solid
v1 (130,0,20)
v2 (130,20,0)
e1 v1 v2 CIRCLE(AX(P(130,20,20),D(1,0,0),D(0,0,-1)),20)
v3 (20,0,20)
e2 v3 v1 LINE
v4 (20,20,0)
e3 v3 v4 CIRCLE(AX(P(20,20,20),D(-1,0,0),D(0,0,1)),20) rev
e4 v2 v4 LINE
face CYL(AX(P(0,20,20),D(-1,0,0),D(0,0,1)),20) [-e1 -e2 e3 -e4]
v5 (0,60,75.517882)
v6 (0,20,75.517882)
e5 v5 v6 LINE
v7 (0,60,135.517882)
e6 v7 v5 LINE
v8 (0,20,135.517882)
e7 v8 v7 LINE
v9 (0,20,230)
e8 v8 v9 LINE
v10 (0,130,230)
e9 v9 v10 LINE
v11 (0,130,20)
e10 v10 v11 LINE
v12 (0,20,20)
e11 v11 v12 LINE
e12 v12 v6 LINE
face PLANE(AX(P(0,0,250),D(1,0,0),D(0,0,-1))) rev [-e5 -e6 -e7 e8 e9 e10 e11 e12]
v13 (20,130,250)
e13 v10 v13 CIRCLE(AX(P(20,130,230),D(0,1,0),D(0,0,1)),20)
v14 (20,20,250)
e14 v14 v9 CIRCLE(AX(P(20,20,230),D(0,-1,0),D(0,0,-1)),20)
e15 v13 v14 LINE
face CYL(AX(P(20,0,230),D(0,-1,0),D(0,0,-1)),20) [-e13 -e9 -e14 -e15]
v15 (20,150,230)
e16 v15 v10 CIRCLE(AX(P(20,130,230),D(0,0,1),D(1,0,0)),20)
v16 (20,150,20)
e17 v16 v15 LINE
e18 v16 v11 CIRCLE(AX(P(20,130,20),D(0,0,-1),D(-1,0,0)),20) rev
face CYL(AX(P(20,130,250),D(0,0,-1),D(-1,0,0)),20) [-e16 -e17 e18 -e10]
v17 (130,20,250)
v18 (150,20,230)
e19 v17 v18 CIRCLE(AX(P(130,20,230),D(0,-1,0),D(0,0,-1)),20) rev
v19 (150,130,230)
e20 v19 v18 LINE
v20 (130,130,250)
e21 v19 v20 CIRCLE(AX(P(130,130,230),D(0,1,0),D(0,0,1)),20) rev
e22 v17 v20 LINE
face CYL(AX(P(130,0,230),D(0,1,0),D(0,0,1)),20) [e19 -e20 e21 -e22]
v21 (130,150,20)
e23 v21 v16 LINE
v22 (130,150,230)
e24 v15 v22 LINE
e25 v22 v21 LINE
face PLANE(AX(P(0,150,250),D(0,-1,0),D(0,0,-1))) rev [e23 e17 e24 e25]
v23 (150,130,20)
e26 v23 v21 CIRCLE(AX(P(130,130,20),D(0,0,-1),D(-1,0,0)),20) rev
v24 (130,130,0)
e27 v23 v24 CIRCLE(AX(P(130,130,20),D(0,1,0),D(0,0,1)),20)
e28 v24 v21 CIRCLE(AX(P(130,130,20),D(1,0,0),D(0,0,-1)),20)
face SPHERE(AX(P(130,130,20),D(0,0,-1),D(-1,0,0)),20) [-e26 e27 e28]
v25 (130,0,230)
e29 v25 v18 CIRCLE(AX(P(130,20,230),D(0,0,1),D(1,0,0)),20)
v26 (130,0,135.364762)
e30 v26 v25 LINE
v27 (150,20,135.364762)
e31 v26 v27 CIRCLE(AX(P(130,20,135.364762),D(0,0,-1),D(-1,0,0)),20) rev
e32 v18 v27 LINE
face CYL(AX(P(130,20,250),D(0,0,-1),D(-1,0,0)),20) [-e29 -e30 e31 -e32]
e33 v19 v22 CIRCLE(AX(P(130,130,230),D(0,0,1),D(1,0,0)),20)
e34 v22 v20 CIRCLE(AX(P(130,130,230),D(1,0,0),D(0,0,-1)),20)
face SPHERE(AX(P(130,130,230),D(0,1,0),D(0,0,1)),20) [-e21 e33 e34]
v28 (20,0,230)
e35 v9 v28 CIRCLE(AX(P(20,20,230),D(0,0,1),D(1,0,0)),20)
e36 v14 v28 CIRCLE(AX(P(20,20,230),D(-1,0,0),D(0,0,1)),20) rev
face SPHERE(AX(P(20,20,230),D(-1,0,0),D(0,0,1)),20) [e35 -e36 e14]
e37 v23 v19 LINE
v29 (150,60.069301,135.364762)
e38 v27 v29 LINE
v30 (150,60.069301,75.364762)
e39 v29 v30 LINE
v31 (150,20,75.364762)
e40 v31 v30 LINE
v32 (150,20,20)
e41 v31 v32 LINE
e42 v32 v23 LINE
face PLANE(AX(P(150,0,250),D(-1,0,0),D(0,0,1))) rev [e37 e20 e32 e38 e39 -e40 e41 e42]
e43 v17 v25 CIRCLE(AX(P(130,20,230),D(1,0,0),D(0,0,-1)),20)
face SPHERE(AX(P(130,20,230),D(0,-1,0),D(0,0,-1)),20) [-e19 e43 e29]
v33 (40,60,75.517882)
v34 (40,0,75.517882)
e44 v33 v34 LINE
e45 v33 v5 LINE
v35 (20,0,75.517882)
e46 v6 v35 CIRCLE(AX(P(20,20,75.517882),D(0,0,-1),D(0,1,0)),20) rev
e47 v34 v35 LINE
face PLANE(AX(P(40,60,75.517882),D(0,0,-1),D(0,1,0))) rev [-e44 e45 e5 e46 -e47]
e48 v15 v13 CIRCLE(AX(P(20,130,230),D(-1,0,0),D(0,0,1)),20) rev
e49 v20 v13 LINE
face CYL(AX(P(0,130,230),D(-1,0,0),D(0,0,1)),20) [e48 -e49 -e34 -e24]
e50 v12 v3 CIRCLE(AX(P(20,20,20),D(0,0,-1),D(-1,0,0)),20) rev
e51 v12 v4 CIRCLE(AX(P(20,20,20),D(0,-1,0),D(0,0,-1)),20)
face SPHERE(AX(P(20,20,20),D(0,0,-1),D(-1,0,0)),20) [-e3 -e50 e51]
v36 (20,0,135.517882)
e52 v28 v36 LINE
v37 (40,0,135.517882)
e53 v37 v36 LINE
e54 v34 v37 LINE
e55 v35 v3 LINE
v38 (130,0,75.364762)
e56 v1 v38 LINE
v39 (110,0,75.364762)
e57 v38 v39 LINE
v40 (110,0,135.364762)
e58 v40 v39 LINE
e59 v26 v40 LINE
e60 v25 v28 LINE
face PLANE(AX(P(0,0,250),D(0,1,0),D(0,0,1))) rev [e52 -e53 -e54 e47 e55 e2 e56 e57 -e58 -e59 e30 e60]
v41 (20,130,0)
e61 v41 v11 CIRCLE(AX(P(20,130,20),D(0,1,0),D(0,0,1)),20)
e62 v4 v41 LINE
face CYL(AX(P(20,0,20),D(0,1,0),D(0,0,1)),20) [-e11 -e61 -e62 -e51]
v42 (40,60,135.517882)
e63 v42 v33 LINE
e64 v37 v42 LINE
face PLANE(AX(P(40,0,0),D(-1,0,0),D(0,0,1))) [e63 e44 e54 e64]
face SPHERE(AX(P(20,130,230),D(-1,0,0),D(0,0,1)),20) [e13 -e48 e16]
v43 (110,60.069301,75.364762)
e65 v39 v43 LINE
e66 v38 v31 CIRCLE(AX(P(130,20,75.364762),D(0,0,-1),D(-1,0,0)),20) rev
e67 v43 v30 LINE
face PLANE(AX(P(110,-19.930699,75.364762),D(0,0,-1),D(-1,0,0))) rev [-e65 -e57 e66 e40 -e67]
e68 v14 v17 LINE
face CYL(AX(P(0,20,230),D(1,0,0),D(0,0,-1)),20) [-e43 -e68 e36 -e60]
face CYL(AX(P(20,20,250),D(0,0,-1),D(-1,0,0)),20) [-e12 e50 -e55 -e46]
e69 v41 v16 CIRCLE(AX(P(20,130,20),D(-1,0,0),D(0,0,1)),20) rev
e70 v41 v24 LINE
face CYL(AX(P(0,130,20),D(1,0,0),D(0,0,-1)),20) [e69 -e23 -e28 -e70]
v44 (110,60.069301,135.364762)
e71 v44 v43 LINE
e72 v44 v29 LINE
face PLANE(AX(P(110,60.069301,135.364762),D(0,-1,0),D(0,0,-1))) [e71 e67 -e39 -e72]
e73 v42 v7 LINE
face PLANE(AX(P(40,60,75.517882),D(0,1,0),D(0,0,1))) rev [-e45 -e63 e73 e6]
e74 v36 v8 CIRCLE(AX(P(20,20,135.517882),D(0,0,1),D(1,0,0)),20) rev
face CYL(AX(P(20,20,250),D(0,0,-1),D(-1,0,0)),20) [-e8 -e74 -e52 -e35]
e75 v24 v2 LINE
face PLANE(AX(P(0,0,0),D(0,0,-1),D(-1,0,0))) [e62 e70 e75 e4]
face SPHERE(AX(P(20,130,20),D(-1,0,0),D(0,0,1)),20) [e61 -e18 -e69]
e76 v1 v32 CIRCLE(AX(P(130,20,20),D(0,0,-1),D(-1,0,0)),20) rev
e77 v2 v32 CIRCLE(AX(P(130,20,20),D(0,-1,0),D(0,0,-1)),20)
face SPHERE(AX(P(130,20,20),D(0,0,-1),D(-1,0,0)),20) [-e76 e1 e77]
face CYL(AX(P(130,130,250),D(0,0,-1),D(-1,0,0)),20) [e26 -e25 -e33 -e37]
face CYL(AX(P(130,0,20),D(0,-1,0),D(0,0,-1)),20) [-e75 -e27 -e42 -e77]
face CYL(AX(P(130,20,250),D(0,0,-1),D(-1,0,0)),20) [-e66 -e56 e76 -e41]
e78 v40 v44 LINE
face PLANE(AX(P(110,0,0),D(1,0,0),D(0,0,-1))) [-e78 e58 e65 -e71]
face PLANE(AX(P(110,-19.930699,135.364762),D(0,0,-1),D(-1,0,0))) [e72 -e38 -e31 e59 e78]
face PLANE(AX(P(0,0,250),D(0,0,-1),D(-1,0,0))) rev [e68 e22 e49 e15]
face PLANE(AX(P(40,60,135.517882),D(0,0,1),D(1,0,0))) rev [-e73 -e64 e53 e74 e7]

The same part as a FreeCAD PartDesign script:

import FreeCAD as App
import Part
import Sketcher

V = App.Vector
Q = App.Units.Quantity

doc = App.newDocument("Part")
body = doc.addObject("PartDesign::Body", "Body")

# Sketch on XY plane
sketch1 = body.newObject("Sketcher::SketchObject", "Sketch")
sketch1.AttachmentSupport = (doc.getObject("XY_Plane"), [""])
sketch1.MapMode = "FlatFace"
sketch1.addGeometry([
    Part.LineSegment(V(0, 150, 0), V(0, 0, 0)),
    Part.LineSegment(V(0, 0, 0), V(150, 0, 0)),
    Part.LineSegment(V(150, 0, 0), V(150, 150, 0)),
    Part.LineSegment(V(150, 150, 0), V(0, 150, 0)),
], False)
sketch1.addConstraint([
    Sketcher.Constraint("Coincident", 0, 2, 1, 1),
    Sketcher.Constraint("Coincident", 1, 2, 2, 1),
    Sketcher.Constraint("Coincident", 2, 2, 3, 1),
    Sketcher.Constraint("Coincident", 3, 2, 0, 1),
    Sketcher.Constraint("Vertical", 0),
    Sketcher.Constraint("Horizontal", 1),
    Sketcher.Constraint("Vertical", 2),
    Sketcher.Constraint("Horizontal", 3),
    Sketcher.Constraint("Coincident", 0, 2, -1, 1),
    Sketcher.Constraint("Equal", 3, 0),
    Sketcher.Constraint("DistanceX", 1, 1, 1, 2, Q("150 mm")),
])
pad1 = body.newObject("PartDesign::Pad", "Pad")
pad1.Profile = sketch1
pad1.Length = 250
doc.recompute()

fillet = body.newObject("PartDesign::Fillet", "Fillet")
fillet.Base = (pad1, ["Edge1"])
fillet.UseAllEdges = True
fillet.Radius = 20

# Sketch on YZ plane
sketch2 = body.newObject("Sketcher::SketchObject", "Sketch001")
sketch2.AttachmentSupport = (doc.getObject("YZ_Plane"), [""])
sketch2.MapMode = "FlatFace"
sketch2.AttachmentOffset = App.Placement(V(0, 0, 150), App.Rotation())
sketch2.addGeometry([
    Part.LineSegment(V(60.069301, 135.364762, 0), V(-19.930699, 135.364762, 0)),
    Part.LineSegment(V(-19.930699, 135.364762, 0), V(-19.930699, 75.364762, 0)),
    Part.LineSegment(V(-19.930699, 75.364762, 0), V(60.069301, 75.364762, 0)),
    Part.LineSegment(V(60.069301, 75.364762, 0), V(60.069301, 135.364762, 0)),
], False)
sketch2.addConstraint([
    Sketcher.Constraint("Coincident", 0, 2, 1, 1),
    Sketcher.Constraint("Coincident", 1, 2, 2, 1),
    Sketcher.Constraint("Coincident", 2, 2, 3, 1),
    Sketcher.Constraint("Coincident", 3, 2, 0, 1),
    Sketcher.Constraint("Horizontal", 0),
    Sketcher.Constraint("Vertical", 1),
    Sketcher.Constraint("Horizontal", 2),
    Sketcher.Constraint("Vertical", 3),
    Sketcher.Constraint("DistanceX", 0, 2, 0, 1, Q("80 mm")),
    Sketcher.Constraint("DistanceY", 1, 2, 1, 1, Q("60 mm")),
    Sketcher.Constraint("DistanceX", 0, 2, -1, 1, Q("19.930699 mm")),
    Sketcher.Constraint("DistanceY", -1, 1, 0, 2, Q("135.364762 mm")),
])
pocket1 = body.newObject("PartDesign::Pocket", "Pocket")
pocket1.Profile = sketch2
pocket1.Length = 40

# Sketch on YZ plane
sketch3 = body.newObject("Sketcher::SketchObject", "Sketch002")
sketch3.AttachmentSupport = (doc.getObject("YZ_Plane"), [""])
sketch3.MapMode = "FlatFace"
sketch3.addGeometry([
    Part.LineSegment(V(60, 75.517882, 0), V(0, 75.517882, 0)),
    Part.LineSegment(V(0, 75.517882, 0), V(0, 135.517882, 0)),
    Part.LineSegment(V(0, 135.517882, 0), V(60, 135.517882, 0)),
    Part.LineSegment(V(60, 135.517882, 0), V(60, 75.517882, 0)),
], False)
sketch3.addConstraint([
    Sketcher.Constraint("Coincident", 0, 2, 1, 1),
    Sketcher.Constraint("Coincident", 1, 2, 2, 1),
    Sketcher.Constraint("Coincident", 2, 2, 3, 1),
    Sketcher.Constraint("Coincident", 3, 2, 0, 1),
    Sketcher.Constraint("Horizontal", 0),
    Sketcher.Constraint("Vertical", 1),
    Sketcher.Constraint("Horizontal", 2),
    Sketcher.Constraint("Vertical", 3),
    Sketcher.Constraint("PointOnObject", 0, 2, -2),
    Sketcher.Constraint("Equal", 2, 1),
    Sketcher.Constraint("DistanceX", 0, 2, 0, 1, Q("60 mm")),
    Sketcher.Constraint("DistanceY", -1, 1, 0, 2, Q("75.517882 mm")),
])
pocket2 = body.newObject("PartDesign::Pocket", "Pocket001")
pocket2.Profile = sketch3
pocket2.Length = 40
pocket2.Reversed = True

doc.recompute()
